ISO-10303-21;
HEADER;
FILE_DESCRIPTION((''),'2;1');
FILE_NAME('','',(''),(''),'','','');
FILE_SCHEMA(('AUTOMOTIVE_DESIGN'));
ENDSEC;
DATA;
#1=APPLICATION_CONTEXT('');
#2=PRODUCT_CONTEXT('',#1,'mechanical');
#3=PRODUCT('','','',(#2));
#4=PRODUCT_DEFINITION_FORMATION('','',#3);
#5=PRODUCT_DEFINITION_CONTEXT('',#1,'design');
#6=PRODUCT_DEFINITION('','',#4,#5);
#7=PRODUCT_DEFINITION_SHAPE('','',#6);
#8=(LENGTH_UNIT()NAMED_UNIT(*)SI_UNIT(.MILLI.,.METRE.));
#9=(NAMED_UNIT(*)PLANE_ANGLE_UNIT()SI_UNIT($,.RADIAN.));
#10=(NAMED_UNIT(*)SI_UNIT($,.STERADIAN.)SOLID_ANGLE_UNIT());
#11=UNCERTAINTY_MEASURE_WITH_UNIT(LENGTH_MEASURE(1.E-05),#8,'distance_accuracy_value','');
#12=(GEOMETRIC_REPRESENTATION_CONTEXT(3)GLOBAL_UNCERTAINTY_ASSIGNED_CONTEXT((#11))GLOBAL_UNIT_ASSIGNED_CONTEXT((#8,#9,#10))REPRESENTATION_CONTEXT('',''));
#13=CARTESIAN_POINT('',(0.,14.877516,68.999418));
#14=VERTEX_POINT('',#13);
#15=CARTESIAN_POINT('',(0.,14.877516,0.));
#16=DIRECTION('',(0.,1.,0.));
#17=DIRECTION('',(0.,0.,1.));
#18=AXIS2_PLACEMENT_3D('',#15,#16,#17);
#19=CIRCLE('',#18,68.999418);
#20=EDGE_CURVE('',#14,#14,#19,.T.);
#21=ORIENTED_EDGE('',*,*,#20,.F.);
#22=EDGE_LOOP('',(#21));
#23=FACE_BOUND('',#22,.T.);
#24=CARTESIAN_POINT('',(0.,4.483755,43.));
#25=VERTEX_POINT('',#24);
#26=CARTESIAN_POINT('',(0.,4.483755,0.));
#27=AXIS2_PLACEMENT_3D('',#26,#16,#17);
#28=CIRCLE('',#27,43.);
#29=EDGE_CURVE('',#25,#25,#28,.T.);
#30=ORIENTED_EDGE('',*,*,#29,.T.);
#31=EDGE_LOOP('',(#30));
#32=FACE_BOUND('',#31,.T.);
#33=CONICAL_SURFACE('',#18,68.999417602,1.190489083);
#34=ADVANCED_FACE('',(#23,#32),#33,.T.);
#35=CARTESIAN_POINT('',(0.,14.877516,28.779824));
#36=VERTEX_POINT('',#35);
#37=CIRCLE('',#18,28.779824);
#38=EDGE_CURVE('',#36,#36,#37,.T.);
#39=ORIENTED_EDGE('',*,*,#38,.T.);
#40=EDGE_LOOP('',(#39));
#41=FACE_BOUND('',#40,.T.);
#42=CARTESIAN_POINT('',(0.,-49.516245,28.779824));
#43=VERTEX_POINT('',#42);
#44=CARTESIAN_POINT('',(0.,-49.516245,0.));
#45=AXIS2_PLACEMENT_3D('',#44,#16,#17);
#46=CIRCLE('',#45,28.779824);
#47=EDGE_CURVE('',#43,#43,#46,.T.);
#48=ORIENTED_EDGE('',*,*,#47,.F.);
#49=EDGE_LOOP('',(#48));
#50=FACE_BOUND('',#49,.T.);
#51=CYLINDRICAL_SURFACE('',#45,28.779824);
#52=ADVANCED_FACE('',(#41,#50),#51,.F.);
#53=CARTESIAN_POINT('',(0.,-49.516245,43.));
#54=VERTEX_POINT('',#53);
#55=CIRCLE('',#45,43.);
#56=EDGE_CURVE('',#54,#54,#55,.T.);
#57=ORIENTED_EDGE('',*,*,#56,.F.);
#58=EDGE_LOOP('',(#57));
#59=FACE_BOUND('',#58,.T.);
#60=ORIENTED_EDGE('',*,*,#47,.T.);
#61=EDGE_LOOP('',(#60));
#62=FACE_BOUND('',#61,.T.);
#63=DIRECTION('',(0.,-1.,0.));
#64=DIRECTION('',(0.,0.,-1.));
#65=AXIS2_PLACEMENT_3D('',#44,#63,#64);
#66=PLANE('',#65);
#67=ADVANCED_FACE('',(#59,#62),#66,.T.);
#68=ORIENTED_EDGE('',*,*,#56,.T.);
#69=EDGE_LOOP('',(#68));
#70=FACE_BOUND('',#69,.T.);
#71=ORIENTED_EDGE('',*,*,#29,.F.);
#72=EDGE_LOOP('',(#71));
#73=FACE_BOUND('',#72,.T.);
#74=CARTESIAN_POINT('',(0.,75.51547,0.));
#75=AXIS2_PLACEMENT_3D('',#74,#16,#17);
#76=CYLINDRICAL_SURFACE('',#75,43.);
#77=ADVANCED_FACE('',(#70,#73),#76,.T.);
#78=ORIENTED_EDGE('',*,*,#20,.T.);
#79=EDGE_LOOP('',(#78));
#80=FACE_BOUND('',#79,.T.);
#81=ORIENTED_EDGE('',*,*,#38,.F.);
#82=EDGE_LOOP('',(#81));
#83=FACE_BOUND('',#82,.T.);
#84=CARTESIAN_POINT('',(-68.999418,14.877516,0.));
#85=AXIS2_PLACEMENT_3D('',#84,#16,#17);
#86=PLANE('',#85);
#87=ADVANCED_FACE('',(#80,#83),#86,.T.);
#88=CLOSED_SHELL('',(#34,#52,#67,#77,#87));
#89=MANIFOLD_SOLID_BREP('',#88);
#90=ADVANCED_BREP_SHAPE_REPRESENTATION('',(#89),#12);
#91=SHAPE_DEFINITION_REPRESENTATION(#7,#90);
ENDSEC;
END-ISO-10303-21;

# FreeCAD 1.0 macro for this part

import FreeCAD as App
import Part
import Sketcher
from FreeCAD import Vector
Q = App.Units.Quantity

doc = App.newDocument("Part")
body = doc.addObject("PartDesign::Body", "Body")

# Sketch on XY plane
sketch1 = body.newObject("Sketcher::SketchObject", "Sketch")
sketch1.AttachmentSupport = (doc.getObject("XY_Plane"), [""])
sketch1.MapMode = "FlatFace"
sketch1.addGeometry([
    Part.LineSegment(Vector(-43, -50, 0), Vector(0, -50, 0)),  # 0
    Part.LineSegment(Vector(0, -50, 0), Vector(0, 15, 0)),  # 1
    Part.LineSegment(Vector(0, 15, 0), Vector(-69, 15, 0)),  # 2
    Part.LineSegment(Vector(-69, 15, 0), Vector(-43, 4, 0)),  # 3
    Part.LineSegment(Vector(-43, 4, 0), Vector(-43, -50, 0)),  # 4
], False)
sketch1.addConstraint([
    Sketcher.Constraint("Coincident", 0, 2, 1, 1),
    Sketcher.Constraint("Coincident", 1, 2, 2, 1),
    Sketcher.Constraint("Coincident", 2, 2, 3, 1),
    Sketcher.Constraint("Coincident", 3, 2, 4, 1),
    Sketcher.Constraint("Coincident", 4, 2, 0, 1),
    Sketcher.Constraint("Horizontal", 0),
    Sketcher.Constraint("Vertical", 1),
    Sketcher.Constraint("Horizontal", 2),
    Sketcher.Constraint("Vertical", 4),
    Sketcher.Constraint("PointOnObject", 0, 2, -2),
    Sketcher.Constraint("DistanceX", 0, 1, 0, 2, Q("43 mm")),
    Sketcher.Constraint("DistanceY", 4, 2, 4, 1, Q("54 mm")),
    Sketcher.Constraint("Distance", 3, Q("28 mm")),
    Sketcher.Constraint("Angle", 3, Q("-21.79 deg")),
    Sketcher.Constraint("DistanceY", 0, 2, -1, 1, Q("49.516245 mm")),
])
revolution = body.newObject("PartDesign::Revolution", "Revolution")
revolution.Profile = sketch1
revolution.ReferenceAxis = (sketch1, ["V_Axis"])
revolution.Angle = 360

# Sketch on XZ plane
sketch2 = body.newObject("Sketcher::SketchObject", "Sketch001")
sketch2.AttachmentSupport = (doc.getObject("XZ_Plane"), [""])
sketch2.MapMode = "FlatFace"
sketch2.AttachmentOffset = App.Placement(Vector(0, 0, -14.877516), App.Rotation())
sketch2.addGeometry(Part.Circle(Vector(0, 0, 0), Vector(0, 0, 1), 29), False)
sketch2.addConstraint([
    Sketcher.Constraint("Coincident", 0, 3, -1, 1),
    Sketcher.Constraint("Diameter", 0, Q("57.559649 mm")),
])
pocket1 = body.newObject("PartDesign::Pocket", "Pocket")
pocket1.Profile = sketch2
pocket1.Type = "ThroughAll"
pocket1.Reversed = True

doc.recompute()
